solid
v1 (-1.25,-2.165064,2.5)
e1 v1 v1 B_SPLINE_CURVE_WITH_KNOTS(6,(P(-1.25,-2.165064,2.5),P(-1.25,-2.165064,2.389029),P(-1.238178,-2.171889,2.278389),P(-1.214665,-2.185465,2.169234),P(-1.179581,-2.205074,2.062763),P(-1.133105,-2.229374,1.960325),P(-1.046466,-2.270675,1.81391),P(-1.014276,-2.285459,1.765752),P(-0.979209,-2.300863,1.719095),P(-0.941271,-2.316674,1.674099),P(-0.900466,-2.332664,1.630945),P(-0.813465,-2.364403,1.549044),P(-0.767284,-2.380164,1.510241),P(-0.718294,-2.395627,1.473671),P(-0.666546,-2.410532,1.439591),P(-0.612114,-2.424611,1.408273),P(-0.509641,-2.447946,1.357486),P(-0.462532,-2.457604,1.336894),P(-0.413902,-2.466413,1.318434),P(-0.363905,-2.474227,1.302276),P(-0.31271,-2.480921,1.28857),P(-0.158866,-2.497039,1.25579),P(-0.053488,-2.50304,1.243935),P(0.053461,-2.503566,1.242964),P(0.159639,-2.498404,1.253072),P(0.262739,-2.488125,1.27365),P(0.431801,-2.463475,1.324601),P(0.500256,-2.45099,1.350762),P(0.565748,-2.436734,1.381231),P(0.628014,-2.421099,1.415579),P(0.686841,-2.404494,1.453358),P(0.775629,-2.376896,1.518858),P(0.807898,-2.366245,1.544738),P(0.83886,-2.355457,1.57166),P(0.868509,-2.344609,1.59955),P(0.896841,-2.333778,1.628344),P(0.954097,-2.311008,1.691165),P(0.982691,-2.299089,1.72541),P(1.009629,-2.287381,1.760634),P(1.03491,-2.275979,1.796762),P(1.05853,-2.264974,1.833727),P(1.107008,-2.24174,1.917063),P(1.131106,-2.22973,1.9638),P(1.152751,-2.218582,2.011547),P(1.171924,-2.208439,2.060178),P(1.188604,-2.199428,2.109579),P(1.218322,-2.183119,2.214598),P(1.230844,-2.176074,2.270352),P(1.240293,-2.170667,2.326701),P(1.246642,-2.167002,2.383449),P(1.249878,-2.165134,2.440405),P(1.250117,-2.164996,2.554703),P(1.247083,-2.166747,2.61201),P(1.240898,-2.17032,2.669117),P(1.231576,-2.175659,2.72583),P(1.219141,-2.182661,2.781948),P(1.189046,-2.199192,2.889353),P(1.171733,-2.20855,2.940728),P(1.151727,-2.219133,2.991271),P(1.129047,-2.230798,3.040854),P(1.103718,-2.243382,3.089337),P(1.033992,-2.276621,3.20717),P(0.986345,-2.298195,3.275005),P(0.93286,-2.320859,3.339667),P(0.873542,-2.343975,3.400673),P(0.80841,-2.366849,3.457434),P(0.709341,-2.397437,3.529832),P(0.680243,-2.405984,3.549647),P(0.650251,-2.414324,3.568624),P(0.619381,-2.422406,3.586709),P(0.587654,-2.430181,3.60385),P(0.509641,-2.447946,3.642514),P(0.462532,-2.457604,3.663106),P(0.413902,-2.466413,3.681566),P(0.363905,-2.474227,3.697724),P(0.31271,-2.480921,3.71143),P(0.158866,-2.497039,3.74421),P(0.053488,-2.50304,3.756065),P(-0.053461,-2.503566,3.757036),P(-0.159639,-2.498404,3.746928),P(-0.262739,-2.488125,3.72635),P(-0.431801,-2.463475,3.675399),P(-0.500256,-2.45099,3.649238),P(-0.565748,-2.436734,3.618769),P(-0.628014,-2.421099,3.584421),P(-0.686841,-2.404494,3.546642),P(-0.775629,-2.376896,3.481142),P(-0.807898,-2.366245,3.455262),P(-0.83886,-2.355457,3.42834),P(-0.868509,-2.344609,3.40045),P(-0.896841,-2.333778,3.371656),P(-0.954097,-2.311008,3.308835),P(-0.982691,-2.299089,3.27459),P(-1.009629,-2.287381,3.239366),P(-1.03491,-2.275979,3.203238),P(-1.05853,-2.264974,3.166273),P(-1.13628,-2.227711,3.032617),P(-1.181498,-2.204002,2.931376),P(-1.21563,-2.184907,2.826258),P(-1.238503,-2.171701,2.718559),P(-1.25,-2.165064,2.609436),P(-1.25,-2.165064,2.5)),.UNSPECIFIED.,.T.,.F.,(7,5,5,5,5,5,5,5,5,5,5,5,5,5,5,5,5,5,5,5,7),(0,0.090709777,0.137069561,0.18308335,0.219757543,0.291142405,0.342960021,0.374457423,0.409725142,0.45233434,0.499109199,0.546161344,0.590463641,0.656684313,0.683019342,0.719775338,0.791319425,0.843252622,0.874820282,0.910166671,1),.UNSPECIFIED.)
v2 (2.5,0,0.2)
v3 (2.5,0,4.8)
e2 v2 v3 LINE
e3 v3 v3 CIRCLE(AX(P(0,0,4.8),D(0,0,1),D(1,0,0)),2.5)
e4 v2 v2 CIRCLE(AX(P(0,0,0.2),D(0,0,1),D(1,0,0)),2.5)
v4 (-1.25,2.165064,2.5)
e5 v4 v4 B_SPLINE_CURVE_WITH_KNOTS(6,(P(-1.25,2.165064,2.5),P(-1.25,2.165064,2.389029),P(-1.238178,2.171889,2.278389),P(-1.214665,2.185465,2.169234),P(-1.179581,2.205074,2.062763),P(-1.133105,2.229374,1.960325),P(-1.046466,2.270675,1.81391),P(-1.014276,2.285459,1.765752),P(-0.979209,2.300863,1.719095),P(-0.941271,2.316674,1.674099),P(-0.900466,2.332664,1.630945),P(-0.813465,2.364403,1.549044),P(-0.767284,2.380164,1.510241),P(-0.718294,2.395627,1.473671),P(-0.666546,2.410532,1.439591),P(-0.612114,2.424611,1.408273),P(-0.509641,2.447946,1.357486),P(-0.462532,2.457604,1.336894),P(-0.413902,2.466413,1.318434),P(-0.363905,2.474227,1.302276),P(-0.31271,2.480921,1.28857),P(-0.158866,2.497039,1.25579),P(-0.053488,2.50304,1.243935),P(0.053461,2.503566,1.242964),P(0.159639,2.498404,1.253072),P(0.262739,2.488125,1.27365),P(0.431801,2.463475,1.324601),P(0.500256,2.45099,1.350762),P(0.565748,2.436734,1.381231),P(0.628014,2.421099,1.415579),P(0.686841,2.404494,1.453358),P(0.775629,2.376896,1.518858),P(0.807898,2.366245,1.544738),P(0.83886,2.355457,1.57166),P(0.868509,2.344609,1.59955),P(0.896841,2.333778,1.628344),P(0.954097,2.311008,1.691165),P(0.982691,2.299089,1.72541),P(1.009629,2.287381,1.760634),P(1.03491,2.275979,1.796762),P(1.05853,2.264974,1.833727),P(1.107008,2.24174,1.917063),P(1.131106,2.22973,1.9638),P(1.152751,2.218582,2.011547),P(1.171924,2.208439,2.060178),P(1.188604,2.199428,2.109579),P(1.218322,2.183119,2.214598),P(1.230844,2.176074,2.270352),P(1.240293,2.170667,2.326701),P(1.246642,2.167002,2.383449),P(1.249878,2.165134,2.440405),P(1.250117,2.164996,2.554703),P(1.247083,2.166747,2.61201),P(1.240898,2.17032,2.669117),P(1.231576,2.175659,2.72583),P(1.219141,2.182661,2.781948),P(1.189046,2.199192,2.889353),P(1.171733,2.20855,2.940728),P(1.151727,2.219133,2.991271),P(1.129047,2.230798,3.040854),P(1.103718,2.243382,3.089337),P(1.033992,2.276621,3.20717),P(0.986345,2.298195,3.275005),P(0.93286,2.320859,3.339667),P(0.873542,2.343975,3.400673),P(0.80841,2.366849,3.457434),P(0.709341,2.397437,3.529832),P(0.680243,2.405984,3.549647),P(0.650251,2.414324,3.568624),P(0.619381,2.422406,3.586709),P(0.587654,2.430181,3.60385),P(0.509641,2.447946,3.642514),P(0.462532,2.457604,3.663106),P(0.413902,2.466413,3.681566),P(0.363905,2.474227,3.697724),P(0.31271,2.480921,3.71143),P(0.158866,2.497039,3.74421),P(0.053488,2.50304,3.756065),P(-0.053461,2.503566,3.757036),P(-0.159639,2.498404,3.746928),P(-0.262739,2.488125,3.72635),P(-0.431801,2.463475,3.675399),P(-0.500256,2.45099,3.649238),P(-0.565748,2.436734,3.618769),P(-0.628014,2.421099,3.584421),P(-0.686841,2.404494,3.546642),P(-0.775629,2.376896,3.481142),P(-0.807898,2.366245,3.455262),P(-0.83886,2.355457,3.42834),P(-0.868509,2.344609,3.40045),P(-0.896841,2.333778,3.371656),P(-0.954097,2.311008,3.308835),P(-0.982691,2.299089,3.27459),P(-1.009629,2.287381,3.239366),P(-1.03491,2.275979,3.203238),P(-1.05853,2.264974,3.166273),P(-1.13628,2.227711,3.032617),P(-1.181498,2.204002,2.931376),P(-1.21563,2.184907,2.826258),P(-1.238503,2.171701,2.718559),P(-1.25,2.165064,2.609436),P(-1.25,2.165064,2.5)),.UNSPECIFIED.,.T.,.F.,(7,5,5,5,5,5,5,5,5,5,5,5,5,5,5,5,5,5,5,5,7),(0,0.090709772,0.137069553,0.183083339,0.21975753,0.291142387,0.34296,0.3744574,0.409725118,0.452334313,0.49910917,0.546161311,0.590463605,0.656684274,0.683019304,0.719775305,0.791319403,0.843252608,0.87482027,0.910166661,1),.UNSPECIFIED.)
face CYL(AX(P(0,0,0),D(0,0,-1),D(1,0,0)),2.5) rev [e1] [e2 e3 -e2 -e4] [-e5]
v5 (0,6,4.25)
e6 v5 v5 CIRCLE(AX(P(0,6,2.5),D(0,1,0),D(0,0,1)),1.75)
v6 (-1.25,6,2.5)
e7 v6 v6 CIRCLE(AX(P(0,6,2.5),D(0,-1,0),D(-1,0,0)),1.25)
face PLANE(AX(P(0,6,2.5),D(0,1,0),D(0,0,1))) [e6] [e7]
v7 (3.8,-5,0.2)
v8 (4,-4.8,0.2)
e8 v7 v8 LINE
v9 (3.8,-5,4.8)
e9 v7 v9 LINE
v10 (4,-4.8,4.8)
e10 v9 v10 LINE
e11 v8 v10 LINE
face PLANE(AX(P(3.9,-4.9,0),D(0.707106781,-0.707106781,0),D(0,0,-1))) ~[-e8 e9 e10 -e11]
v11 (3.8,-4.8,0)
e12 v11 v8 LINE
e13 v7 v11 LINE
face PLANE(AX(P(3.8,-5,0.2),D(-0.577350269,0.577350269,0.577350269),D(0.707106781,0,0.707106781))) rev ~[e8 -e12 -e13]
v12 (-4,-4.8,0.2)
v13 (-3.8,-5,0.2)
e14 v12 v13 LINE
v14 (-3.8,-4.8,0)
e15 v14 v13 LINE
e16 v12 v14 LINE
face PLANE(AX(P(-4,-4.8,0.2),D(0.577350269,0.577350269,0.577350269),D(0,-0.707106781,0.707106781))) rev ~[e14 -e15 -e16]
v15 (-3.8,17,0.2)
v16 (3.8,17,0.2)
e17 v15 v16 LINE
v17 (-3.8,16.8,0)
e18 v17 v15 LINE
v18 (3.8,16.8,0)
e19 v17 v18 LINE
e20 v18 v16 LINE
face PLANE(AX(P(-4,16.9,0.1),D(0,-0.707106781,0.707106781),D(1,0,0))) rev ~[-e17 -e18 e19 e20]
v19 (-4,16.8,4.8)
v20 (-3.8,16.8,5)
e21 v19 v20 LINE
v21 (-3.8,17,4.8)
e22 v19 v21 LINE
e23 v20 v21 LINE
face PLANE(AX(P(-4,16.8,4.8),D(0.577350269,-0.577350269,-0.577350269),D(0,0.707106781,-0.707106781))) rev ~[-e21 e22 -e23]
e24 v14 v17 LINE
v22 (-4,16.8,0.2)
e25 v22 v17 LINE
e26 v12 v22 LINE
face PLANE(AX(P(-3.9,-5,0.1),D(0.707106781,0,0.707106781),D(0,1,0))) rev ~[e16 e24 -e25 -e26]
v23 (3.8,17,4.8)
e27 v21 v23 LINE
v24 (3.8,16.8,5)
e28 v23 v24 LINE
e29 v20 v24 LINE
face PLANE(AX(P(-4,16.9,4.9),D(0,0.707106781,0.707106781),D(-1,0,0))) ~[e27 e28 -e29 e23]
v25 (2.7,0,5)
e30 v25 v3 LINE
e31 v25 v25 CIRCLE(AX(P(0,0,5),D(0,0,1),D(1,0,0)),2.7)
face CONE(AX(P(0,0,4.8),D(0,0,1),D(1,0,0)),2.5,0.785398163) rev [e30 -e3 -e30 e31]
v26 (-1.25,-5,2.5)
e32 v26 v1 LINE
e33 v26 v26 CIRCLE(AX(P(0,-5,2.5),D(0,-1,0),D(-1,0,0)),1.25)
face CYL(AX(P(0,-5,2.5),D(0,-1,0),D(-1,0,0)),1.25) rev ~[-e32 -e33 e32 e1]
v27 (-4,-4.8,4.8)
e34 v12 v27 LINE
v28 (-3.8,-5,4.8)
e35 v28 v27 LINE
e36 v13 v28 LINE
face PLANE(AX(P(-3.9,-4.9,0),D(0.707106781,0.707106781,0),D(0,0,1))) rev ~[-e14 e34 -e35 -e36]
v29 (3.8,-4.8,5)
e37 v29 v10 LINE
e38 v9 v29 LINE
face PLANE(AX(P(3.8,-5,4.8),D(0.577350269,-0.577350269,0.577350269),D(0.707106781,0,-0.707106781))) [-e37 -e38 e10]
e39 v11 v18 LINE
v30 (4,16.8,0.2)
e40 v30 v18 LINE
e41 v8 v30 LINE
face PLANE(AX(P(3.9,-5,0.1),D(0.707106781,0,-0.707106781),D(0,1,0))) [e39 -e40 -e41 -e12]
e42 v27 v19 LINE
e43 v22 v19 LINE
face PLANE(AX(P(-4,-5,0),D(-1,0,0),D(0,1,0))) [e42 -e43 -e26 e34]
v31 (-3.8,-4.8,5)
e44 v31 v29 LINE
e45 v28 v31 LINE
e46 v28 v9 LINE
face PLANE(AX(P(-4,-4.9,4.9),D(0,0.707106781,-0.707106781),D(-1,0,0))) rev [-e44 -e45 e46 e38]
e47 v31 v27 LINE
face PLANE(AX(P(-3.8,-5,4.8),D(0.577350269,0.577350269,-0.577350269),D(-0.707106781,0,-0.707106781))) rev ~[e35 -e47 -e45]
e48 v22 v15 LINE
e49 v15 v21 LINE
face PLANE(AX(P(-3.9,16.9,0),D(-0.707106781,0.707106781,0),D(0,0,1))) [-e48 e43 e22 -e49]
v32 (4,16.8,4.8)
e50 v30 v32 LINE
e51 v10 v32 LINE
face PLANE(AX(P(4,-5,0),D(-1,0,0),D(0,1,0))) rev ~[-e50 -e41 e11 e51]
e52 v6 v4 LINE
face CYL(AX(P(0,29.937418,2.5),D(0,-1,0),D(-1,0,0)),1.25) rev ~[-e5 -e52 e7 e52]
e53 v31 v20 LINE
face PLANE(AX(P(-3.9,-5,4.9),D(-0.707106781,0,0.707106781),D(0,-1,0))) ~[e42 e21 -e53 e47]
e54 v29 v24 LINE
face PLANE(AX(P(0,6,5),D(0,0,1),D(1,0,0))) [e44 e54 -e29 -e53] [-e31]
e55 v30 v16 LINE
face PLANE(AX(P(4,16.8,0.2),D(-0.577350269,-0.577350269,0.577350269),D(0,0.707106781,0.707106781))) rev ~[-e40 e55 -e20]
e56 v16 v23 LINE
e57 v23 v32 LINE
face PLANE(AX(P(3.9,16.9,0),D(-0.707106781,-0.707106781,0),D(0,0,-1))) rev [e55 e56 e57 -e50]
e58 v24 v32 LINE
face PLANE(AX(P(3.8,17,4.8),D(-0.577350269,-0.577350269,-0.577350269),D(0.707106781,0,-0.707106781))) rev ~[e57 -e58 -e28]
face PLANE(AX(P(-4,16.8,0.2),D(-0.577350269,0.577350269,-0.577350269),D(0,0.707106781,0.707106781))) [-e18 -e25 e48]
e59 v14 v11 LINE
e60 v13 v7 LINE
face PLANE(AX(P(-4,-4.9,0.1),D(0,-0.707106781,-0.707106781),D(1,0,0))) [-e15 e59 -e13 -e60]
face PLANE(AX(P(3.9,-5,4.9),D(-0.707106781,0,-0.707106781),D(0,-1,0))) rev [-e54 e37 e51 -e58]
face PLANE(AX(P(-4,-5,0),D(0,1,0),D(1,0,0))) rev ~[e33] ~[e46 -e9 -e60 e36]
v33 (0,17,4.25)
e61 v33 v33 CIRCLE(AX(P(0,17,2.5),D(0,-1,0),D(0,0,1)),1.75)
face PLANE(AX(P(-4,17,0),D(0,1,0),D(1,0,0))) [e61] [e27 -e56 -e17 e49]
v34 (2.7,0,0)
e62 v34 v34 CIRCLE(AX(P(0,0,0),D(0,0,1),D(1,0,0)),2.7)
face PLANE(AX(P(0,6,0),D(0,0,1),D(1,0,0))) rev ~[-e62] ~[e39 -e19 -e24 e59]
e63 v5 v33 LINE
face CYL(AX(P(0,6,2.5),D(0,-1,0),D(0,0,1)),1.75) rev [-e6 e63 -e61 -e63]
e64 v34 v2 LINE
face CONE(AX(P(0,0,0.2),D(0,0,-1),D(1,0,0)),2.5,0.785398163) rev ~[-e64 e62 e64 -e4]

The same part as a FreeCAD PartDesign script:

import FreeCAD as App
import Part
import Sketcher
from FreeCAD import Vector


def edges_at(feature, points):
    """Names of the edges that pass closest to the given points."""
    edges = feature.Shape.Edges
    near = lambda p: min(range(len(edges)), key=lambda i: edges[i].distToShape(Part.Vertex(*p))[0])
    return sorted({f"Edge{near(p) + 1}" for p in points})

doc = App.newDocument("Part")
body = doc.addObject("PartDesign::Body", "Body")

sketch1 = body.newObject("Sketcher::SketchObject", "Sketch")
sketch1.AttachmentSupport = (doc.getObject("XY_Plane"), [""])
sketch1.MapMode = "FlatFace"
sketch1.addGeometry([
    Part.LineSegment(Vector(-4, 17, 0), Vector(-4, -5, 0)),
    Part.LineSegment(Vector(-4, -5, 0), Vector(4, -5, 0)),
    Part.LineSegment(Vector(4, -5, 0), Vector(4, 17, 0)),
    Part.LineSegment(Vector(4, 17, 0), Vector(-4, 17, 0)),
    Part.Circle(Vector(0, 0, 0), Vector(0, 0, 1), 2.5),
], False)
sketch1.addConstraint([
    Sketcher.Constraint("Coincident", 0, 2, 1, 1),
    Sketcher.Constraint("Coincident", 1, 2, 2, 1),
    Sketcher.Constraint("Coincident", 2, 2, 3, 1),
    Sketcher.Constraint("Coincident", 3, 2, 0, 1),
    Sketcher.Constraint("Vertical", 0),
    Sketcher.Constraint("Horizontal", 1),
    Sketcher.Constraint("Vertical", 2),
    Sketcher.Constraint("Horizontal", 3),
    Sketcher.Constraint("Coincident", 4, 3, -1, 1),
    Sketcher.Constraint("Diameter", 4, 5.0),
    Sketcher.Constraint("DistanceX", 1, 1, 1, 2, 8.0),
    Sketcher.Constraint("DistanceY", 0, 2, 0, 1, 22.0),
    Sketcher.Constraint("DistanceX", 0, 2, -1, 1, 4.0),
    Sketcher.Constraint("DistanceY", 0, 2, -1, 1, 5.0),
])
pad1 = body.newObject("PartDesign::Pad", "Pad")
pad1.Profile = sketch1
pad1.Length = 5

sketch2 = body.newObject("Sketcher::SketchObject", "Sketch001")
sketch2.AttachmentSupport = (doc.getObject("XZ_Plane"), [""])
sketch2.MapMode = "FlatFace"
sketch2.AttachmentOffset = App.Placement(Vector(0, 0, 5), App.Rotation())
sketch2.addGeometry(Part.Circle(Vector(0, 2.5, 0), Vector(0, 0, 1), 1.2), False)
sketch2.addConstraint([
    Sketcher.Constraint("PointOnObject", 0, 3, -2),
    Sketcher.Constraint("Diameter", 0, 2.5),
    Sketcher.Constraint("DistanceY", -1, 1, 0, 3, 2.5),
])
pocket1 = body.newObject("PartDesign::Pocket", "Pocket")
pocket1.Profile = sketch2
pocket1.Length = 2.834936
doc.recompute()

chamfer = body.newObject("PartDesign::Chamfer", "Chamfer")
chamfer.Base = (pocket1, edges_at(pocket1, [(-2.5, 0, 0), (-2.5, 0, 5)]))
chamfer.Size = 0.2
doc.recompute()

chamfer2 = body.newObject("PartDesign::Chamfer", "Chamfer001")
chamfer2.Base = (chamfer, edges_at(chamfer, [
    (4, 6, 5),
    (0, 17, 5),
    (-4, 6, 5),
    (0, 17, 0),
    (4, 6, 0),
    (0, -5, 0),
    (-4, 6, 0),
    (0, -5, 5),
    (-4, 17, 2.5),
    (4, 17, 2.5),
    (4, -5, 2.5),
    (-4, -5, 2.5),
]))
chamfer2.Size = 0.2

sketch3 = body.newObject("Sketcher::SketchObject", "Sketch002")
sketch3.AttachmentSupport = (doc.getObject("XZ_Plane"), [""])
sketch3.MapMode = "FlatFace"
sketch3.AttachmentOffset = App.Placement(Vector(0, 0, -6), App.Rotation())
sketch3.addGeometry(Part.Circle(Vector(0, 2.5, 0), Vector(0, 0, 1), 1.8), False)
sketch3.addConstraint([
    Sketcher.Constraint("PointOnObject", 0, 3, -2),
    Sketcher.Constraint("Diameter", 0, 3.5),
    Sketcher.Constraint("DistanceY", -1, 1, 0, 3, 2.5),
])
pocket2 = body.newObject("PartDesign::Pocket", "Pocket001")
pocket2.Profile = sketch3
pocket2.Type = "ThroughAll"

sketch4 = body.newObject("Sketcher::SketchObject", "Sketch003")
sketch4.AttachmentSupport = (doc.getObject("XZ_Plane"), [""])
sketch4.MapMode = "FlatFace"
sketch4.AttachmentOffset = App.Placement(Vector(0, 0, -6), App.Rotation())
sketch4.addGeometry(Part.Circle(Vector(0, 2.5, 0), Vector(0, 0, 1), 1.2), False)
sketch4.addConstraint([
    Sketcher.Constraint("PointOnObject", 0, 3, -2),
    Sketcher.Constraint("Diameter", 0, 2.5),
    Sketcher.Constraint("DistanceY", -1, 1, 0, 3, 2.5),
])
doc.recompute()
hole = body.newObject("PartDesign::Hole", "Hole")
hole.Profile = sketch4
hole.ThreadType = "None"
hole.Diameter = 2.5
hole.DepthType = "ThroughAll"
hole.Reversed = True

doc.recompute()
